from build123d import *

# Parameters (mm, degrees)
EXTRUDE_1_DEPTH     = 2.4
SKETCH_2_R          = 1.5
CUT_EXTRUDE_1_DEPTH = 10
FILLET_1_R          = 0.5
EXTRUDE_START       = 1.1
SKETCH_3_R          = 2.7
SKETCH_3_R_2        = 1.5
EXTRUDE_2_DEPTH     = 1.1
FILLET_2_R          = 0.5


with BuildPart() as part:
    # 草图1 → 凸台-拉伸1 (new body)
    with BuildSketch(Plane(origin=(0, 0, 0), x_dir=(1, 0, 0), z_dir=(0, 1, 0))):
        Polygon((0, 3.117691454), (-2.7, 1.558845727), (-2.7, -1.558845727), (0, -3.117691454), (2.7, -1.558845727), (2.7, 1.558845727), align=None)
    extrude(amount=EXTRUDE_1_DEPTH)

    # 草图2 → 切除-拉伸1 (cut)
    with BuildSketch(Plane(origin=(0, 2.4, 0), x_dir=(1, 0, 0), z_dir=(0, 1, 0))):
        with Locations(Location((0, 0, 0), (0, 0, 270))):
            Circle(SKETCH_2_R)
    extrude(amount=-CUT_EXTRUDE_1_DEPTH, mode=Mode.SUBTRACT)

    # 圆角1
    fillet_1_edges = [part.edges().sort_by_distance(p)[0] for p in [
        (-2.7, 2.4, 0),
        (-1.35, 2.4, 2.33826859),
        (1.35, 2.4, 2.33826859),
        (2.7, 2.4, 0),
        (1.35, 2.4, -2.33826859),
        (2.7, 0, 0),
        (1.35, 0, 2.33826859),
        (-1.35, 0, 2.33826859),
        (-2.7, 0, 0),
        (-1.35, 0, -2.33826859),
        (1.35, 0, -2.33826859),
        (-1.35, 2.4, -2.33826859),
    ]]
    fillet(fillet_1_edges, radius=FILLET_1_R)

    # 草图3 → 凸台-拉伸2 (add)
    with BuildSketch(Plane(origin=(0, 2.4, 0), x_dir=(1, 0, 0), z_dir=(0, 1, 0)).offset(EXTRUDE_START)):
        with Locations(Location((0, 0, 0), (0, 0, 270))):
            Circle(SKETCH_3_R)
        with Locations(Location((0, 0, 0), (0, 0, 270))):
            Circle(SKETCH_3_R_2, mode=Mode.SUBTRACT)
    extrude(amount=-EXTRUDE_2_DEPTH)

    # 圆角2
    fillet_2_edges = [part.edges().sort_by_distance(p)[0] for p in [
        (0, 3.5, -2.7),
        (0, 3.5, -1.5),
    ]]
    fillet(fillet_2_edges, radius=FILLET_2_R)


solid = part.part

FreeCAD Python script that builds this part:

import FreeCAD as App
import Part
import Sketcher

V = App.Vector
Q = App.Units.Quantity


def edges_at(feature, points):
    """Names of the edges that pass closest to the given points."""
    edges = feature.Shape.Edges
    near = lambda p: min(range(len(edges)), key=lambda i: edges[i].distToShape(Part.Vertex(*p))[0])
    return sorted({f"Edge{near(p) + 1}" for p in points})

doc = App.newDocument("Part")
body = doc.addObject("PartDesign::Body", "Body")

sketch1 = body.newObject("Sketcher::SketchObject", "Sketch")
sketch1.AttachmentSupport = (doc.getObject("XZ_Plane"), [""])
sketch1.MapMode = "FlatFace"
sketch1.addGeometry([
    Part.LineSegment(V(0, -3.117691, 0), V(-2.7, -1.558846, 0)),
    Part.LineSegment(V(-2.7, -1.558846, 0), V(-2.7, 1.558846, 0)),
    Part.LineSegment(V(-2.7, 1.558846, 0), V(0, 3.117691, 0)),
    Part.LineSegment(V(0, 3.117691, 0), V(2.7, 1.558846, 0)),
    Part.LineSegment(V(2.7, 1.558846, 0), V(2.7, -1.558846, 0)),
    Part.LineSegment(V(2.7, -1.558846, 0), V(0, -3.117691, 0)),
], False)
sketch1.addConstraint([
    Sketcher.Constraint("Coincident", 0, 2, 1, 1),
    Sketcher.Constraint("Coincident", 1, 2, 2, 1),
    Sketcher.Constraint("Coincident", 2, 2, 3, 1),
    Sketcher.Constraint("Coincident", 3, 2, 4, 1),
    Sketcher.Constraint("Coincident", 4, 2, 5, 1),
    Sketcher.Constraint("Coincident", 5, 2, 0, 1),
    Sketcher.Constraint("Vertical", 1),
    Sketcher.Constraint("Vertical", 4),
    Sketcher.Constraint("Symmetric", 0, 2, 3, 2, -1, 1),
    Sketcher.Constraint("Symmetric", 2, 2, 5, 2, -1, 1),
    Sketcher.Constraint("PointOnObject", 2, 2, -2),
    Sketcher.Constraint("Parallel", 2, 5),
    Sketcher.Constraint("Horizontal", 1, 2, 3, 2),
    Sketcher.Constraint("Angle", 0, Q("150 deg")),
    Sketcher.Constraint("DistanceX", 0, 2, -1, 1, 2.7),
    Sketcher.Constraint("DistanceY", 1, 1, 1, 2, 3.117691),
])
pad1 = body.newObject("PartDesign::Pad", "Pad")
pad1.Profile = sketch1
pad1.Length = 2.4
pad1.Reversed = True

sketch2 = body.newObject("Sketcher::SketchObject", "Sketch001")
sketch2.AttachmentSupport = (doc.getObject("XZ_Plane"), [""])
sketch2.MapMode = "FlatFace"
sketch2.AttachmentOffset = App.Placement(V(0, 0, -2.4), App.Rotation())
sketch2.addGeometry(Part.Circle(V(0, 0, 0), V(0, 0, 1), 1.5), False)
sketch2.addConstraint([
    Sketcher.Constraint("Coincident", 0, 3, -1, 1),
    Sketcher.Constraint("Diameter", 0, 3.0),
])
pocket1 = body.newObject("PartDesign::Pocket", "Pocket")
pocket1.Profile = sketch2
pocket1.Length = 10
pocket1.Reversed = True
doc.recompute()

fillet = body.newObject("PartDesign::Fillet", "Fillet")
fillet.Base = (pocket1, edges_at(pocket1, [
    (-2.7, 2.4, 0),
    (-1.35, 2.4, 2.338),
    (1.35, 2.4, 2.338),
    (2.7, 2.4, 0),
    (1.35, 2.4, -2.338),
    (2.7, 0, 0),
    (1.35, 0, 2.338),
    (-1.35, 0, 2.338),
    (-2.7, 0, 0),
    (-1.35, 0, -2.338),
    (1.35, 0, -2.338),
    (-1.35, 2.4, -2.338),
]))
fillet.Radius = 0.5

sketch3 = body.newObject("Sketcher::SketchObject", "Sketch002")
sketch3.AttachmentSupport = (doc.getObject("XZ_Plane"), [""])
sketch3.MapMode = "FlatFace"
sketch3.AttachmentOffset = App.Placement(V(0, 0, -3.5), App.Rotation())
sketch3.addGeometry([
    Part.Circle(V(0, 0, 0), V(0, 0, 1), 2.7),
    Part.Circle(V(0, 0, 0), V(0, 0, 1), 1.5),
], False)
sketch3.addConstraint([
    Sketcher.Constraint("Coincident", 0, 3, -1, 1),
    Sketcher.Constraint("Coincident", 1, 3, -1, 1),
    Sketcher.Constraint("Diameter", 1, 3.0),
    Sketcher.Constraint("Diameter", 0, 5.4),
])
pad2 = body.newObject("PartDesign::Pad", "Pad001")
pad2.Profile = sketch3
pad2.Length = 1.1
doc.recompute()

fillet2 = body.newObject("PartDesign::Fillet", "Fillet001")
fillet2.Base = (pad2, edges_at(pad2, [(0, 3.5, -2.7), (0, 3.5, -1.5)]))
fillet2.Radius = 0.5

doc.recompute()
